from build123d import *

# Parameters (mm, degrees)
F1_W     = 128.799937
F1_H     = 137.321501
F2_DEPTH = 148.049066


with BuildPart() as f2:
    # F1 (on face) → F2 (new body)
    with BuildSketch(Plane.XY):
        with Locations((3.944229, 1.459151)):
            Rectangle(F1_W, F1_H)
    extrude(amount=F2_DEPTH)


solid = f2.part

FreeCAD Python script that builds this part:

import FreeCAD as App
import Part
import Sketcher
from FreeCAD import Vector
Q = App.Units.Quantity


def add_polygon(sketch, points):
    """Adds a closed chain of lines whose ends are joined by coincident constraints."""
    first, n = sketch.GeometryCount, len(points)
    for a, b in zip(points, points[1:] + points[:1]):
        sketch.addGeometry(Part.LineSegment(App.Vector(*a, 0), App.Vector(*b, 0)), False)
    for i in range(n):
        sketch.addConstraint(Sketcher.Constraint("Coincident", first + i, 2, first + (i + 1) % n, 1))

doc = App.newDocument("Part")
body = doc.addObject("PartDesign::Body", "Body")

sketch1 = body.newObject("Sketcher::SketchObject", "Sketch")
sketch1.AttachmentSupport = (doc.getObject("XY_Plane"), [""])
sketch1.MapMode = "FlatFace"
add_polygon(sketch1, [(-60, 70), (-60, -67), (68, -67), (68, 70)])
sketch1.addConstraint(Sketcher.Constraint("Vertical", 0))
sketch1.addConstraint(Sketcher.Constraint("Horizontal", 1))
sketch1.addConstraint(Sketcher.Constraint("Vertical", 2))
sketch1.addConstraint(Sketcher.Constraint("Horizontal", 3))
sketch1.addConstraint(Sketcher.Constraint("DistanceY", 0, 2, 0, 1, Q("137.321501 mm")))
sketch1.addConstraint(Sketcher.Constraint("DistanceY", 0, 2, -1, 1, Q("67.2016 mm")))
sketch1.addConstraint(Sketcher.Constraint("DistanceX", 1, 1, 1, 2, Q("128.799937 mm")))
sketch1.addConstraint(Sketcher.Constraint("DistanceX", 0, 2, -1, 1, Q("60.455739 mm")))
pad1 = body.newObject("PartDesign::Pad", "Pad")
pad1.Profile = sketch1
pad1.Length = 148.049066

doc.recompute()
